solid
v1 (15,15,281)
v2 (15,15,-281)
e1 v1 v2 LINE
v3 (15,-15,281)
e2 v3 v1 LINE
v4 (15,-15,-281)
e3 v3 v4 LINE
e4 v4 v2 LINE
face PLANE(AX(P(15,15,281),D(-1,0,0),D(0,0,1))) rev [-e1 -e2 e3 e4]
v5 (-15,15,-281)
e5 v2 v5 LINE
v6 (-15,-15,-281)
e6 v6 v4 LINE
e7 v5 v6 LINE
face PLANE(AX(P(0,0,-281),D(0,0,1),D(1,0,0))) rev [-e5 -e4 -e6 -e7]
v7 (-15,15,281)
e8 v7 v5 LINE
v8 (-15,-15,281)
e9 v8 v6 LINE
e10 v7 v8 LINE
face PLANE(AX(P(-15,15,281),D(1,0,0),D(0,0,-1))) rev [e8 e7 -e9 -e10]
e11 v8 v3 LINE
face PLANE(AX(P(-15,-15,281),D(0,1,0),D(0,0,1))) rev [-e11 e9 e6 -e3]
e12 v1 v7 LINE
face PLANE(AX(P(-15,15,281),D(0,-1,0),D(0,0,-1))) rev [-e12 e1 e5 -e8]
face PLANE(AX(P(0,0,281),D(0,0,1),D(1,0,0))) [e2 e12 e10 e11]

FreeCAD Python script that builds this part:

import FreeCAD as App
import Part
import Sketcher
from FreeCAD import Vector
Q = App.Units.Quantity

doc = App.newDocument("Part")
body = doc.addObject("PartDesign::Body", "Body")

# Sketch on XY plane
sketch1 = body.newObject("Sketcher::SketchObject", "Sketch")
sketch1.AttachmentSupport = (doc.getObject("XY_Plane"), [""])
sketch1.MapMode = "FlatFace"
sketch1.addGeometry([
    Part.LineSegment(Vector(-15, 15, 0), Vector(-15, -15, 0)),
    Part.LineSegment(Vector(-15, -15, 0), Vector(15, -15, 0)),
    Part.LineSegment(Vector(15, -15, 0), Vector(15, 15, 0)),
    Part.LineSegment(Vector(15, 15, 0), Vector(-15, 15, 0)),
], False)
sketch1.addConstraint([
    Sketcher.Constraint("Coincident", 0, 2, 1, 1),
    Sketcher.Constraint("Coincident", 1, 2, 2, 1),
    Sketcher.Constraint("Coincident", 2, 2, 3, 1),
    Sketcher.Constraint("Coincident", 3, 2, 0, 1),
    Sketcher.Constraint("Vertical", 0),
    Sketcher.Constraint("Horizontal", 1),
    Sketcher.Constraint("Vertical", 2),
    Sketcher.Constraint("Horizontal", 3),
    Sketcher.Constraint("Symmetric", 0, 2, 2, 2, -1, 1),
    Sketcher.Constraint("Equal", 3, 0),
    Sketcher.Constraint("DistanceX", 1, 1, 1, 2, Q("30 mm")),
])
pad1 = body.newObject("PartDesign::Pad", "Pad")
pad1.Profile = sketch1
pad1.Length = 562
pad1.Midplane = True

doc.recompute()
